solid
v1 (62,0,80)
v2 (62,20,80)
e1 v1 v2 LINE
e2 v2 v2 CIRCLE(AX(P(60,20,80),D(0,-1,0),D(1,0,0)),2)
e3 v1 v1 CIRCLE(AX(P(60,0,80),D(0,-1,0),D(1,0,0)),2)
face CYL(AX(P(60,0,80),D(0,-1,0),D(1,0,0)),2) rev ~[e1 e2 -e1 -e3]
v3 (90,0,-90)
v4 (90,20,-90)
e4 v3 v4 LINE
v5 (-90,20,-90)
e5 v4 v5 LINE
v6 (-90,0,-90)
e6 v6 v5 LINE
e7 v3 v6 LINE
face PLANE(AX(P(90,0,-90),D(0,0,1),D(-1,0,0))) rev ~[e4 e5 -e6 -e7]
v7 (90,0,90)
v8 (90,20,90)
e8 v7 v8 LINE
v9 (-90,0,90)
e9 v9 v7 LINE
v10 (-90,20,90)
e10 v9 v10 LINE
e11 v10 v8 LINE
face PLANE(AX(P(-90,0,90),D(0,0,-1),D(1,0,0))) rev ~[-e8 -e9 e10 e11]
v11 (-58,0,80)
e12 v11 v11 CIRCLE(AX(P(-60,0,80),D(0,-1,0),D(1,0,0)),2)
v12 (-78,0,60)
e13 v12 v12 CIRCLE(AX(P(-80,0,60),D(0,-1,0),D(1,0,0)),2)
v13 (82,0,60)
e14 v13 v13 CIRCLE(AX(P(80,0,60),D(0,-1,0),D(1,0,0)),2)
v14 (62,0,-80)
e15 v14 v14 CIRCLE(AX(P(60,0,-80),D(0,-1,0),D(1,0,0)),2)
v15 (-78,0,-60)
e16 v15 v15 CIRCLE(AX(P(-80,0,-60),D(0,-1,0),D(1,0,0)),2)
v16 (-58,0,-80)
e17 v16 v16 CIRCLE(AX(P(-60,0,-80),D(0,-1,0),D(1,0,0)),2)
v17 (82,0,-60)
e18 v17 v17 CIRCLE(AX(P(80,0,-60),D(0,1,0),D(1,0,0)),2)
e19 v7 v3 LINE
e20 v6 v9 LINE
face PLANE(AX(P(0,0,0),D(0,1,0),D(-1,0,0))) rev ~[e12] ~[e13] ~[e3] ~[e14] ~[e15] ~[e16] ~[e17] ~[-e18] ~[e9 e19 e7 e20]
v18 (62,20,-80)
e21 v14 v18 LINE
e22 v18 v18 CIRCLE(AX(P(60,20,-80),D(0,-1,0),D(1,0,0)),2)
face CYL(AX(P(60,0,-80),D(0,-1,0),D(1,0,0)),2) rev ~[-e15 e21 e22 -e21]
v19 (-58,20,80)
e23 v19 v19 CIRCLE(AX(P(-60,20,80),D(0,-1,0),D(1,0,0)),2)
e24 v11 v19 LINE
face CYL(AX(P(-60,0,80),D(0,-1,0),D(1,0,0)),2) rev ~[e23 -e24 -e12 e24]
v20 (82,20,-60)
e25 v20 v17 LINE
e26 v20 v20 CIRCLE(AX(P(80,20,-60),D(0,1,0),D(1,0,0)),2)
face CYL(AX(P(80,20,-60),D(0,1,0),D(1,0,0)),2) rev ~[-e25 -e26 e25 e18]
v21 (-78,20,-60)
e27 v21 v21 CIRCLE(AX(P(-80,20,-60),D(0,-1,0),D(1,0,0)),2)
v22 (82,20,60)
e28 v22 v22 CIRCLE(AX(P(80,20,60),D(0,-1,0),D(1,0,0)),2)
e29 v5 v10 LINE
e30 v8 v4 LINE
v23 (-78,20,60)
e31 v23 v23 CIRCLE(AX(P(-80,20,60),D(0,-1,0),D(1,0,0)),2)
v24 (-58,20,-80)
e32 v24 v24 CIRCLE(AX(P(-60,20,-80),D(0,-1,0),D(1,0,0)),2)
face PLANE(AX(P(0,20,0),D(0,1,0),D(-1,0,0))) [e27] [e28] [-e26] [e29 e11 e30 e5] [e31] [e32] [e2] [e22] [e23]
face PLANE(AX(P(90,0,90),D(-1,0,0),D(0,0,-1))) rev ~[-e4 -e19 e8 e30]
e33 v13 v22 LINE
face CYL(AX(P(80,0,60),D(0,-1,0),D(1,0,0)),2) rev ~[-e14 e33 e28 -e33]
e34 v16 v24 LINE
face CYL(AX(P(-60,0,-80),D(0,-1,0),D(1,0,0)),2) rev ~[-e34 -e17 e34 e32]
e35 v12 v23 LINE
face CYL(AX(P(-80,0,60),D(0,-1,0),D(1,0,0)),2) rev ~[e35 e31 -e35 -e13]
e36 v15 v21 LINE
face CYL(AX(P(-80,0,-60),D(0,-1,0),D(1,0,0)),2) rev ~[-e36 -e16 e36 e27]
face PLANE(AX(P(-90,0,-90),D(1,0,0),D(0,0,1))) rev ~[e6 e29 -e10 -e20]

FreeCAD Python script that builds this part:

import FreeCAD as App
import Part
import Sketcher
from FreeCAD import Vector

doc = App.newDocument("Part")
body = doc.addObject("PartDesign::Body", "Body")

sketch1 = body.newObject("Sketcher::SketchObject", "Sketch")
sketch1.AttachmentSupport = (doc.getObject("XZ_Plane"), [""])
sketch1.MapMode = "FlatFace"
sketch1.addGeometry([
    Part.LineSegment(Vector(-90, -90, 0), Vector(-90, 90, 0)),
    Part.LineSegment(Vector(-90, 90, 0), Vector(90, 90, 0)),
    Part.LineSegment(Vector(90, 90, 0), Vector(90, -90, 0)),
    Part.LineSegment(Vector(90, -90, 0), Vector(-90, -90, 0)),
], False)
sketch1.addConstraint([
    Sketcher.Constraint("Coincident", 0, 2, 1, 1),
    Sketcher.Constraint("Coincident", 1, 2, 2, 1),
    Sketcher.Constraint("Coincident", 2, 2, 3, 1),
    Sketcher.Constraint("Coincident", 3, 2, 0, 1),
    Sketcher.Constraint("Vertical", 0),
    Sketcher.Constraint("Horizontal", 1),
    Sketcher.Constraint("Vertical", 2),
    Sketcher.Constraint("Horizontal", 3),
    Sketcher.Constraint("Symmetric", 0, 2, 2, 2, -1, 1),
    Sketcher.Constraint("Equal", 3, 0),
    Sketcher.Constraint("DistanceX", 1, 1, 1, 2, 180.0),
])
pad1 = body.newObject("PartDesign::Pad", "Pad")
pad1.Profile = sketch1
pad1.Length = 20
pad1.Reversed = True

sketch2 = body.newObject("Sketcher::SketchObject", "Sketch001")
sketch2.AttachmentSupport = (doc.getObject("XZ_Plane"), [""])
sketch2.MapMode = "FlatFace"
sketch2.AttachmentOffset = App.Placement(Vector(0, 0, -20), App.Rotation())
sketch2.addGeometry(Part.Circle(Vector(80, -60, 0), Vector(0, 0, 1), 2), False)
sketch2.addConstraint([
    Sketcher.Constraint("Diameter", 0, 4.0),
    Sketcher.Constraint("DistanceX", -1, 1, 0, 3, 80.0),
    Sketcher.Constraint("DistanceY", 0, 3, -1, 1, 60.0),
])
pocket1 = body.newObject("PartDesign::Pocket", "Pocket")
pocket1.Profile = sketch2
pocket1.Type = "ThroughAll"
pocket1.Reversed = True

sketch3 = body.newObject("Sketcher::SketchObject", "Sketch002")
sketch3.AttachmentSupport = (doc.getObject("XZ_Plane"), [""])
sketch3.MapMode = "FlatFace"
sketch3.addGeometry(Part.Circle(Vector(60, -80, 0), Vector(0, 0, 1), 2), False)
sketch3.addConstraint([
    Sketcher.Constraint("Diameter", 0, 4.0),
    Sketcher.Constraint("DistanceX", -1, 1, 0, 3, 60.0),
    Sketcher.Constraint("DistanceY", 0, 3, -1, 1, 80.0),
])
pocket2 = body.newObject("PartDesign::Pocket", "Pocket001")
pocket2.Profile = sketch3
pocket2.Type = "ThroughAll"

sketch4 = body.newObject("Sketcher::SketchObject", "Sketch003")
sketch4.AttachmentSupport = (doc.getObject("XZ_Plane"), [""])
sketch4.MapMode = "FlatFace"
sketch4.addGeometry(Part.Circle(Vector(80, 60, 0), Vector(0, 0, 1), 2), False)
sketch4.addConstraint([
    Sketcher.Constraint("Diameter", 0, 4.0),
    Sketcher.Constraint("DistanceX", -1, 1, 0, 3, 80.0),
    Sketcher.Constraint("DistanceY", -1, 1, 0, 3, 60.0),
])
pocket3 = body.newObject("PartDesign::Pocket", "Pocket002")
pocket3.Profile = sketch4
pocket3.Type = "ThroughAll"

sketch5 = body.newObject("Sketcher::SketchObject", "Sketch004")
sketch5.AttachmentSupport = (doc.getObject("XZ_Plane"), [""])
sketch5.MapMode = "FlatFace"
sketch5.addGeometry(Part.Circle(Vector(60, 80, 0), Vector(0, 0, 1), 2), False)
sketch5.addConstraint([
    Sketcher.Constraint("Diameter", 0, 4.0),
    Sketcher.Constraint("DistanceX", -1, 1, 0, 3, 60.0),
    Sketcher.Constraint("DistanceY", -1, 1, 0, 3, 80.0),
])
pocket4 = body.newObject("PartDesign::Pocket", "Pocket003")
pocket4.Profile = sketch5
pocket4.Type = "ThroughAll"

sketch6 = body.newObject("Sketcher::SketchObject", "Sketch005")
sketch6.AttachmentSupport = (doc.getObject("XZ_Plane"), [""])
sketch6.MapMode = "FlatFace"
sketch6.addGeometry(Part.Circle(Vector(-80, -60, 0), Vector(0, 0, 1), 2), False)
sketch6.addConstraint([
    Sketcher.Constraint("Diameter", 0, 4.0),
    Sketcher.Constraint("DistanceX", 0, 3, -1, 1, 80.0),
    Sketcher.Constraint("DistanceY", 0, 3, -1, 1, 60.0),
])
pocket5 = body.newObject("PartDesign::Pocket", "Pocket004")
pocket5.Profile = sketch6
pocket5.Type = "ThroughAll"

sketch7 = body.newObject("Sketcher::SketchObject", "Sketch006")
sketch7.AttachmentSupport = (doc.getObject("XZ_Plane"), [""])
sketch7.MapMode = "FlatFace"
sketch7.addGeometry(Part.Circle(Vector(-60, -80, 0), Vector(0, 0, 1), 2), False)
sketch7.addConstraint([
    Sketcher.Constraint("Diameter", 0, 4.0),
    Sketcher.Constraint("DistanceX", 0, 3, -1, 1, 60.0),
    Sketcher.Constraint("DistanceY", 0, 3, -1, 1, 80.0),
])
pocket6 = body.newObject("PartDesign::Pocket", "Pocket005")
pocket6.Profile = sketch7
pocket6.Type = "ThroughAll"

sketch8 = body.newObject("Sketcher::SketchObject", "Sketch007")
sketch8.AttachmentSupport = (doc.getObject("XZ_Plane"), [""])
sketch8.MapMode = "FlatFace"
sketch8.addGeometry(Part.Circle(Vector(-80, 60, 0), Vector(0, 0, 1), 2), False)
sketch8.addConstraint([
    Sketcher.Constraint("Diameter", 0, 4.0),
    Sketcher.Constraint("DistanceX", 0, 3, -1, 1, 80.0),
    Sketcher.Constraint("DistanceY", -1, 1, 0, 3, 60.0),
])
pocket7 = body.newObject("PartDesign::Pocket", "Pocket006")
pocket7.Profile = sketch8
pocket7.Type = "ThroughAll"

sketch9 = body.newObject("Sketcher::SketchObject", "Sketch008")
sketch9.AttachmentSupport = (doc.getObject("XZ_Plane"), [""])
sketch9.MapMode = "FlatFace"
sketch9.addGeometry(Part.Circle(Vector(-60, 80, 0), Vector(0, 0, 1), 2), False)
sketch9.addConstraint([
    Sketcher.Constraint("Diameter", 0, 4.0),
    Sketcher.Constraint("DistanceX", 0, 3, -1, 1, 60.0),
    Sketcher.Constraint("DistanceY", -1, 1, 0, 3, 80.0),
])
pocket8 = body.newObject("PartDesign::Pocket", "Pocket007")
pocket8.Profile = sketch9
pocket8.Type = "ThroughAll"

doc.recompute()
